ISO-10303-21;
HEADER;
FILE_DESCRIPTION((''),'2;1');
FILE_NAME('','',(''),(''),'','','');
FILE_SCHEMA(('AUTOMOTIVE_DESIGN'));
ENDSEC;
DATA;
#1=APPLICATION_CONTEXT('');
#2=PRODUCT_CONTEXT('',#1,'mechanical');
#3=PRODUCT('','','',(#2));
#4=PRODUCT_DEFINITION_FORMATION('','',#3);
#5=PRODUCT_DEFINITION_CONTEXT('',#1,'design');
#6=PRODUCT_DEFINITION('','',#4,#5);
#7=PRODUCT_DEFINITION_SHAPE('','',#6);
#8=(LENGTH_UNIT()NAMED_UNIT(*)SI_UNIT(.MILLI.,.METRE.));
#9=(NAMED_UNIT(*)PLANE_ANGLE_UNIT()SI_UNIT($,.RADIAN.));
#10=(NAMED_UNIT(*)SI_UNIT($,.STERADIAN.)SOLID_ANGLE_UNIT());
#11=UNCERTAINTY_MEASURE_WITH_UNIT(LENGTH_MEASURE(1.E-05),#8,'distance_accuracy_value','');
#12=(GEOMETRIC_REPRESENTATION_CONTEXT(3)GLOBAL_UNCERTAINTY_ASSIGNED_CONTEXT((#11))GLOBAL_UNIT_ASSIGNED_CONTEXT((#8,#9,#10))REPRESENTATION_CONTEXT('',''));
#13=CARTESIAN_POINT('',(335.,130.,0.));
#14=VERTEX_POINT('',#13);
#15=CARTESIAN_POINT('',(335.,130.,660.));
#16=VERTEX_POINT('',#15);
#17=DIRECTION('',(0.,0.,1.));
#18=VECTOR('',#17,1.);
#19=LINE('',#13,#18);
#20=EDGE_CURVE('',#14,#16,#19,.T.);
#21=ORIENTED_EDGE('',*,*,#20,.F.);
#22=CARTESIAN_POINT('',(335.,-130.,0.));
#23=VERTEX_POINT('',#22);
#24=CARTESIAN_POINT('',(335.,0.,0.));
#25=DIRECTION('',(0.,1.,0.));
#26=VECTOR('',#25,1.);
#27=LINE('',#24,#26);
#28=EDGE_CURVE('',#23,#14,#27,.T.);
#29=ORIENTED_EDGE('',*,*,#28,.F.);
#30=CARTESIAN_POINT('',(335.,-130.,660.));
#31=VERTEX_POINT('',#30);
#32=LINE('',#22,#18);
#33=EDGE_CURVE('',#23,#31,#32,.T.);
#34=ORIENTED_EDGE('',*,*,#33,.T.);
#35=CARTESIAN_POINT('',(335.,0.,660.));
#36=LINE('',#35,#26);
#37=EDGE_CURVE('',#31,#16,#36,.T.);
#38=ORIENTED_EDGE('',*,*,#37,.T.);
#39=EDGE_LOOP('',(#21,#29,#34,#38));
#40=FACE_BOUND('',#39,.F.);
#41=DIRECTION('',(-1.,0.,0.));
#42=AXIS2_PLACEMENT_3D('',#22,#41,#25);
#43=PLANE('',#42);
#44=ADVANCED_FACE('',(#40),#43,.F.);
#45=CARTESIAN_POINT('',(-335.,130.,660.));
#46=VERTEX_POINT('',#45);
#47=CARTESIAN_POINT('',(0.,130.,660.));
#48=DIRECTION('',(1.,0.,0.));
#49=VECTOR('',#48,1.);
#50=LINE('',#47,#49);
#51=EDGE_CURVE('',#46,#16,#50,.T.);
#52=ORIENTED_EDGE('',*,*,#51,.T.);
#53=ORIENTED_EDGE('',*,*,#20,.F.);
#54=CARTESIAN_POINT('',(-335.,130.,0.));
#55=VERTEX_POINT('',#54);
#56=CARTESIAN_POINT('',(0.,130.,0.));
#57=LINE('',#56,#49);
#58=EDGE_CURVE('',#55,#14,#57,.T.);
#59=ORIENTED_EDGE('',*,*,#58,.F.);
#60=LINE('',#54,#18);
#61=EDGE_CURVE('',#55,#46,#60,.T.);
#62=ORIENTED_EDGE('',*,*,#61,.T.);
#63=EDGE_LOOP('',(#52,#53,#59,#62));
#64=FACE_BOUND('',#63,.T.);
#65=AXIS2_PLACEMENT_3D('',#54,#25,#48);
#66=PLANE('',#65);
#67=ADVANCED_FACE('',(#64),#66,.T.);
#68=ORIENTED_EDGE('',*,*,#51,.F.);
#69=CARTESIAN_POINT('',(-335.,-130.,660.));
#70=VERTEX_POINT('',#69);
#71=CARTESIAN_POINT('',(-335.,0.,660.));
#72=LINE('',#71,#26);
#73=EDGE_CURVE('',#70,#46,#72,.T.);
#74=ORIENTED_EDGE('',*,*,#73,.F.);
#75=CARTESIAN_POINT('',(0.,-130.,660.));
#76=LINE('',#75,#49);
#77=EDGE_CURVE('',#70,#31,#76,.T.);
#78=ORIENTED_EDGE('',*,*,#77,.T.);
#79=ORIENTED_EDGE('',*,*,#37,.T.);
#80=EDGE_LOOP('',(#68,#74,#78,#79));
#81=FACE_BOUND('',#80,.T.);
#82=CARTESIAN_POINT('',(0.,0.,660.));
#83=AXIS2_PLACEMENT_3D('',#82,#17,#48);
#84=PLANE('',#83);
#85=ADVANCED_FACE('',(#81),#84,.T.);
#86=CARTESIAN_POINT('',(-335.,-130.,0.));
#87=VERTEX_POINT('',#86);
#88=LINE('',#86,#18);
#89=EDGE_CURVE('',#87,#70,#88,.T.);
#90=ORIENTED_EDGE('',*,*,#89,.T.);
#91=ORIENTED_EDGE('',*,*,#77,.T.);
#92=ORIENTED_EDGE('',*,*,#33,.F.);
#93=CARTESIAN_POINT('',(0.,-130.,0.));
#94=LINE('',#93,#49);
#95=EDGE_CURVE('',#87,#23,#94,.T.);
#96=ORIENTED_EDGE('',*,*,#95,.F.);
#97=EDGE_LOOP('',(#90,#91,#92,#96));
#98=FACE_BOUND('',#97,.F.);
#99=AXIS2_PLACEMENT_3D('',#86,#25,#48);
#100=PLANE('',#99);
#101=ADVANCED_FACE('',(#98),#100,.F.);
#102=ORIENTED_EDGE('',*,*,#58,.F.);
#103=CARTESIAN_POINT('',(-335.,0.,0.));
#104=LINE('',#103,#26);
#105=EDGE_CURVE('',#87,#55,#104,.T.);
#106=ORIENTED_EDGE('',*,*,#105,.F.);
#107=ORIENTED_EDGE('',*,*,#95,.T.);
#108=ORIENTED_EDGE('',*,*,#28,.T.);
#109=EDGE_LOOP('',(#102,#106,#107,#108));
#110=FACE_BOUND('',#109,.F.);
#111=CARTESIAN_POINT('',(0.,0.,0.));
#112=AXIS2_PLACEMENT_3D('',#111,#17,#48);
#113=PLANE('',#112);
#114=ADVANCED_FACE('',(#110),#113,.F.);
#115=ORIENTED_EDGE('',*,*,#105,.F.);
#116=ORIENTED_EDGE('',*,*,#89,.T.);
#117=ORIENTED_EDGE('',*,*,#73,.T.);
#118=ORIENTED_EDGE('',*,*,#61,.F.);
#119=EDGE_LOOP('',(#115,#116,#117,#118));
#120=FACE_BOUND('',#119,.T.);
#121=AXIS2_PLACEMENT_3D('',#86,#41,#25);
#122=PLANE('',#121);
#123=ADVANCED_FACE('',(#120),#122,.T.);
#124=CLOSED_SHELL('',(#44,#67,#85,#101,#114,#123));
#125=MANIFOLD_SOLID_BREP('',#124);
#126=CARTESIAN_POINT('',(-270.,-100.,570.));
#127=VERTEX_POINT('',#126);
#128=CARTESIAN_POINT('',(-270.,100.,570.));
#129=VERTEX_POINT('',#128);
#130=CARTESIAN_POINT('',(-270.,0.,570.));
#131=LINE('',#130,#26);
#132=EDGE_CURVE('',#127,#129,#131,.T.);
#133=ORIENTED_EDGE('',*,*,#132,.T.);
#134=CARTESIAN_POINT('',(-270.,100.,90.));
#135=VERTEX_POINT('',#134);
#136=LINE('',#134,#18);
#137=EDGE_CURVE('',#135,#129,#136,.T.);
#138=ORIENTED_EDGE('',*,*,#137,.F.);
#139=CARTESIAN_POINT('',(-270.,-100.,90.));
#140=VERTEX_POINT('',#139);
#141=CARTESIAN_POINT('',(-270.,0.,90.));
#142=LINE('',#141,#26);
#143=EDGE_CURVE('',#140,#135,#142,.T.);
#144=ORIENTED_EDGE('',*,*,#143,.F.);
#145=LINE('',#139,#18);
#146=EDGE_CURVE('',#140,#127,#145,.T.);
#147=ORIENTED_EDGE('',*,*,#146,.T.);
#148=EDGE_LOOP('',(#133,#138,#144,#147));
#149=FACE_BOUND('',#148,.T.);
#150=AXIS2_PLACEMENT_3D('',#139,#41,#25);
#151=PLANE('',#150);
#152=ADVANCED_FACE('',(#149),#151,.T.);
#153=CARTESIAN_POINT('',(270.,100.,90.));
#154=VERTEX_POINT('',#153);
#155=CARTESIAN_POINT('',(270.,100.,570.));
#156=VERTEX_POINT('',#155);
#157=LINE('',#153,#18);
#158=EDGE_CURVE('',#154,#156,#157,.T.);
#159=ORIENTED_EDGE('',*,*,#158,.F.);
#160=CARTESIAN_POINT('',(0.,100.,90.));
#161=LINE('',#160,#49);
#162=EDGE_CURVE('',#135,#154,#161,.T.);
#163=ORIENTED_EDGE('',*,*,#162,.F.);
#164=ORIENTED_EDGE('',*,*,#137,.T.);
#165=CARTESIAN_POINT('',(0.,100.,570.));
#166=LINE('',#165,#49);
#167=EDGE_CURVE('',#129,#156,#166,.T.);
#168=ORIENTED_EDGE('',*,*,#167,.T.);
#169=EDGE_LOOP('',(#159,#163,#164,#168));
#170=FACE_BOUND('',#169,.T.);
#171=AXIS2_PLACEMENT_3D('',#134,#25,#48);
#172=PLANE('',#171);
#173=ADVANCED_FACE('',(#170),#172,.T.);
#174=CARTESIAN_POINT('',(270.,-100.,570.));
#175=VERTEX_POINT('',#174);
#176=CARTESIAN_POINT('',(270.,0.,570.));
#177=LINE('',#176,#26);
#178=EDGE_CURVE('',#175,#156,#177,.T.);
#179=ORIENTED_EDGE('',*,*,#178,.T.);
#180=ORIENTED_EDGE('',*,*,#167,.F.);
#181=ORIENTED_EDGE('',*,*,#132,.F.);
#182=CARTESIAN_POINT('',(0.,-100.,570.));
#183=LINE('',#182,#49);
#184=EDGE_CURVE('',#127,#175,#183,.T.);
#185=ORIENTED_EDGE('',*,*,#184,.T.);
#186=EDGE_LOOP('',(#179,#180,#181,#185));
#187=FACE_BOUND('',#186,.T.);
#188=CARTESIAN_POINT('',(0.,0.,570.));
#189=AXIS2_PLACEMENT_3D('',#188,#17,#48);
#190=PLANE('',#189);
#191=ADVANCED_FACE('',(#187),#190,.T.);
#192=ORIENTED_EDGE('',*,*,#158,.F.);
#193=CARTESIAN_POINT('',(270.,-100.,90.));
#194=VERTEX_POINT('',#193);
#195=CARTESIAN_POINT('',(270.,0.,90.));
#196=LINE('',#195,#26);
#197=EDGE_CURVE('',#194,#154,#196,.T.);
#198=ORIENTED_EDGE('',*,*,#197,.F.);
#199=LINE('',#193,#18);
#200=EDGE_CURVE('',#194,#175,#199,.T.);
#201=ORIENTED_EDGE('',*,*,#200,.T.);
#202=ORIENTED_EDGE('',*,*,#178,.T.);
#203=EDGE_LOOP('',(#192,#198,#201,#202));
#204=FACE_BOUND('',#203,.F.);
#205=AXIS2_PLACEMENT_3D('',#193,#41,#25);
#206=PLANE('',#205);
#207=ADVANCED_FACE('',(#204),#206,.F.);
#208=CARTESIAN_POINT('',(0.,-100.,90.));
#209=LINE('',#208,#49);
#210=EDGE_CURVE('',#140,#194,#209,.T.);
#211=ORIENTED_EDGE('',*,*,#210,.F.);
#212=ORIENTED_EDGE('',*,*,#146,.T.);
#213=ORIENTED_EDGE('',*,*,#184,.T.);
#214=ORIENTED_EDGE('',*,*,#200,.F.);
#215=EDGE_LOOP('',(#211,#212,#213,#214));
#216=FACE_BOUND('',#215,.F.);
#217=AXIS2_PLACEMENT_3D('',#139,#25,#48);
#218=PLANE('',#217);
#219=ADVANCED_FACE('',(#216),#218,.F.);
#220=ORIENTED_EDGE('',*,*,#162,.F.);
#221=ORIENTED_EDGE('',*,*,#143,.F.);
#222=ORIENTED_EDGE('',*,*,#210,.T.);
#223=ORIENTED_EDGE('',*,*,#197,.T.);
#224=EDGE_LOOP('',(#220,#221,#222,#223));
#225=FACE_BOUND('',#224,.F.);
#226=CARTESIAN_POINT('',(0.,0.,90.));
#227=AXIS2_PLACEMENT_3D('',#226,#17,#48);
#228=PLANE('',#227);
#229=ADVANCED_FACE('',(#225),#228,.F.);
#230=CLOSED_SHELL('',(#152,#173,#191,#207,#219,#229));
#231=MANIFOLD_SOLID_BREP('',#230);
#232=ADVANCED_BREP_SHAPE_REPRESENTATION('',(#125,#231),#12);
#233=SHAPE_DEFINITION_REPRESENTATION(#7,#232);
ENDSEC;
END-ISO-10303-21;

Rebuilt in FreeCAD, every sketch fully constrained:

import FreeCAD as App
import Part
import Sketcher

doc = App.newDocument("Part")
body = doc.addObject("PartDesign::Body", "Body")

# Sketch on XY plane
sketch1 = body.newObject("Sketcher::SketchObject", "Sketch")
sketch1.AttachmentSupport = (doc.getObject("XY_Plane"), [""])
sketch1.MapMode = "FlatFace"
sketch1.AttachmentOffset = App.Placement(App.Vector(0, 0, 90), App.Rotation())
sketch1.addGeometry(Part.LineSegment(App.Vector(-270, 100, 0), App.Vector(-270, -100, 0)), False)
sketch1.addGeometry(Part.LineSegment(App.Vector(-270, -100, 0), App.Vector(270, -100, 0)), False)
sketch1.addGeometry(Part.LineSegment(App.Vector(270, -100, 0), App.Vector(270, 100, 0)), False)
sketch1.addGeometry(Part.LineSegment(App.Vector(270, 100, 0), App.Vector(-270, 100, 0)), False)
sketch1.addConstraint(Sketcher.Constraint("Coincident", 0, 2, 1, 1))
sketch1.addConstraint(Sketcher.Constraint("Coincident", 1, 2, 2, 1))
sketch1.addConstraint(Sketcher.Constraint("Coincident", 2, 2, 3, 1))
sketch1.addConstraint(Sketcher.Constraint("Coincident", 3, 2, 0, 1))
sketch1.addConstraint(Sketcher.Constraint("Vertical", 0))
sketch1.addConstraint(Sketcher.Constraint("Horizontal", 1))
sketch1.addConstraint(Sketcher.Constraint("Vertical", 2))
sketch1.addConstraint(Sketcher.Constraint("Horizontal", 3))
sketch1.addConstraint(Sketcher.Constraint("Symmetric", 0, 2, 2, 2, -1, 1))
sketch1.addConstraint(Sketcher.Constraint("DistanceX", 1, 1, 1, 2, 540.0))
sketch1.addConstraint(Sketcher.Constraint("DistanceY", 0, 2, 0, 1, 200.0))
pad1 = body.newObject("PartDesign::Pad", "Pad")
pad1.Profile = sketch1
pad1.Length = 480
body2 = doc.addObject("PartDesign::Body", "Body001")

# Sketch on XY plane
sketch2 = body2.newObject("Sketcher::SketchObject", "Sketch001")
sketch2.AttachmentSupport = (doc.getObject("XY_Plane001"), [""])
sketch2.MapMode = "FlatFace"
sketch2.addGeometry(Part.LineSegment(App.Vector(-335, 130, 0), App.Vector(-335, -130, 0)), False)
sketch2.addGeometry(Part.LineSegment(App.Vector(-335, -130, 0), App.Vector(335, -130, 0)), False)
sketch2.addGeometry(Part.LineSegment(App.Vector(335, -130, 0), App.Vector(335, 130, 0)), False)
sketch2.addGeometry(Part.LineSegment(App.Vector(335, 130, 0), App.Vector(-335, 130, 0)), False)
sketch2.addConstraint(Sketcher.Constraint("Coincident", 0, 2, 1, 1))
sketch2.addConstraint(Sketcher.Constraint("Coincident", 1, 2, 2, 1))
sketch2.addConstraint(Sketcher.Constraint("Coincident", 2, 2, 3, 1))
sketch2.addConstraint(Sketcher.Constraint("Coincident", 3, 2, 0, 1))
sketch2.addConstraint(Sketcher.Constraint("Vertical", 0))
sketch2.addConstraint(Sketcher.Constraint("Horizontal", 1))
sketch2.addConstraint(Sketcher.Constraint("Vertical", 2))
sketch2.addConstraint(Sketcher.Constraint("Horizontal", 3))
sketch2.addConstraint(Sketcher.Constraint("Symmetric", 0, 2, 2, 2, -1, 1))
sketch2.addConstraint(Sketcher.Constraint("DistanceX", 1, 1, 1, 2, 670.0))
sketch2.addConstraint(Sketcher.Constraint("DistanceY", 0, 2, 0, 1, 260.0))
pad2 = body2.newObject("PartDesign::Pad", "Pad001")
pad2.Profile = sketch2
pad2.Length = 660

doc.recompute()
